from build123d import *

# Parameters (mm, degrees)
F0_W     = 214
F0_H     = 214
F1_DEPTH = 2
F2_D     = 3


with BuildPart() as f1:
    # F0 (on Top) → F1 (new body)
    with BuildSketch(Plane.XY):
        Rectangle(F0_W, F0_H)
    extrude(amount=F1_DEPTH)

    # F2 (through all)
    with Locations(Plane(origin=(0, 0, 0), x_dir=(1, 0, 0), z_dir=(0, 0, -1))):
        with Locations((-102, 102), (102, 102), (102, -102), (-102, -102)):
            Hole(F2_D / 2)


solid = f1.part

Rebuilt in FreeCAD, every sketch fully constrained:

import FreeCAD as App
import Part
import Sketcher


def add_polygon(sketch, points):
    """Adds a closed chain of lines whose ends are joined by coincident constraints."""
    first, n = sketch.GeometryCount, len(points)
    for a, b in zip(points, points[1:] + points[:1]):
        sketch.addGeometry(Part.LineSegment(App.Vector(*a, 0), App.Vector(*b, 0)), False)
    for i in range(n):
        sketch.addConstraint(Sketcher.Constraint("Coincident", first + i, 2, first + (i + 1) % n, 1))

doc = App.newDocument("Part")
body = doc.addObject("PartDesign::Body", "Body")

# Sketch on XY plane
sketch1 = body.newObject("Sketcher::SketchObject", "Sketch")
sketch1.AttachmentSupport = (doc.getObject("XY_Plane"), [""])
sketch1.MapMode = "FlatFace"
add_polygon(sketch1, [(-107, 107), (-107, -107), (107, -107), (107, 107)])  # lines 0-3
sketch1.addConstraint([
    Sketcher.Constraint("Vertical", 0),
    Sketcher.Constraint("Horizontal", 1),
    Sketcher.Constraint("Vertical", 2),
    Sketcher.Constraint("Horizontal", 3),
    Sketcher.Constraint("Symmetric", 0, 2, 2, 2, -1, 1),
    Sketcher.Constraint("Equal", 3, 0),
    Sketcher.Constraint("DistanceX", 1, 1, 1, 2, 214.0),
])
pad1 = body.newObject("PartDesign::Pad", "Pad")
pad1.Profile = sketch1
pad1.Length = 2

# Sketch on XY plane
sketch2 = body.newObject("Sketcher::SketchObject", "Sketch001")
sketch2.AttachmentSupport = (doc.getObject("XY_Plane"), [""])
sketch2.MapMode = "FlatFace"
sketch2.addGeometry([
    Part.Circle(App.Vector(-102, -102, 0), App.Vector(0, 0, 1), 1.5),
    Part.Circle(App.Vector(102, -102, 0), App.Vector(0, 0, 1), 1.5),
    Part.Circle(App.Vector(102, 102, 0), App.Vector(0, 0, 1), 1.5),
    Part.Circle(App.Vector(-102, 102, 0), App.Vector(0, 0, 1), 1.5),
], False)
sketch2.addConstraint([
    Sketcher.Constraint("Equal", 0, 1),
    Sketcher.Constraint("Equal", 1, 2),
    Sketcher.Constraint("Equal", 2, 3),
    Sketcher.Constraint("Symmetric", 0, 3, 2, 3, -1, 1),
    Sketcher.Constraint("Symmetric", 1, 3, 3, 3, -1, 1),
    Sketcher.Constraint("Symmetric", 0, 3, 1, 3, -2),
    Sketcher.Constraint("Diameter", 0, 3.0),
    Sketcher.Constraint("DistanceX", 0, 3, -1, 1, 102.0),
    Sketcher.Constraint("DistanceY", 0, 3, -1, 1, 102.0),
])
doc.recompute()
hole = body.newObject("PartDesign::Hole", "Hole")
hole.Profile = sketch2
hole.ThreadType = "None"
hole.Diameter = 3
hole.DepthType = "ThroughAll"
hole.Reversed = True

doc.recompute()
